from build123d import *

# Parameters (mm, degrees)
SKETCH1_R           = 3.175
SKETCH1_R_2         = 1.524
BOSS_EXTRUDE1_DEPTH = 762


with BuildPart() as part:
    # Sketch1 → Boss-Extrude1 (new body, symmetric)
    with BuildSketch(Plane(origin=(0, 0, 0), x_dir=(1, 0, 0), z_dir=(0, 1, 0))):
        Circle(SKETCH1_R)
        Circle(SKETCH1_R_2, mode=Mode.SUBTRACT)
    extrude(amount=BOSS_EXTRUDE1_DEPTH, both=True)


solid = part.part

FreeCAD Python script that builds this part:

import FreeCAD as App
import Part
import Sketcher

V = App.Vector
Q = App.Units.Quantity

doc = App.newDocument("Part")
body = doc.addObject("PartDesign::Body", "Body")

# Sketch on XZ plane
sketch1 = body.newObject("Sketcher::SketchObject", "Sketch")
sketch1.AttachmentSupport = (doc.getObject("XZ_Plane"), [""])
sketch1.MapMode = "FlatFace"
sketch1.addGeometry([
    Part.Circle(V(0, 0, 0), V(0, 0, 1), 3.2),
    Part.Circle(V(0, 0, 0), V(0, 0, 1), 1.5),
], False)
sketch1.addConstraint([
    Sketcher.Constraint("Coincident", 0, 3, -1, 1),
    Sketcher.Constraint("Coincident", 1, 3, -1, 1),
    Sketcher.Constraint("Diameter", 0, Q("0.25 in")),
    Sketcher.Constraint("Diameter", 1, Q("0.12 in")),
])
pad1 = body.newObject("PartDesign::Pad", "Pad")
pad1.Profile = sketch1
pad1.Length = Q("60 in")
pad1.Midplane = True

doc.recompute()
